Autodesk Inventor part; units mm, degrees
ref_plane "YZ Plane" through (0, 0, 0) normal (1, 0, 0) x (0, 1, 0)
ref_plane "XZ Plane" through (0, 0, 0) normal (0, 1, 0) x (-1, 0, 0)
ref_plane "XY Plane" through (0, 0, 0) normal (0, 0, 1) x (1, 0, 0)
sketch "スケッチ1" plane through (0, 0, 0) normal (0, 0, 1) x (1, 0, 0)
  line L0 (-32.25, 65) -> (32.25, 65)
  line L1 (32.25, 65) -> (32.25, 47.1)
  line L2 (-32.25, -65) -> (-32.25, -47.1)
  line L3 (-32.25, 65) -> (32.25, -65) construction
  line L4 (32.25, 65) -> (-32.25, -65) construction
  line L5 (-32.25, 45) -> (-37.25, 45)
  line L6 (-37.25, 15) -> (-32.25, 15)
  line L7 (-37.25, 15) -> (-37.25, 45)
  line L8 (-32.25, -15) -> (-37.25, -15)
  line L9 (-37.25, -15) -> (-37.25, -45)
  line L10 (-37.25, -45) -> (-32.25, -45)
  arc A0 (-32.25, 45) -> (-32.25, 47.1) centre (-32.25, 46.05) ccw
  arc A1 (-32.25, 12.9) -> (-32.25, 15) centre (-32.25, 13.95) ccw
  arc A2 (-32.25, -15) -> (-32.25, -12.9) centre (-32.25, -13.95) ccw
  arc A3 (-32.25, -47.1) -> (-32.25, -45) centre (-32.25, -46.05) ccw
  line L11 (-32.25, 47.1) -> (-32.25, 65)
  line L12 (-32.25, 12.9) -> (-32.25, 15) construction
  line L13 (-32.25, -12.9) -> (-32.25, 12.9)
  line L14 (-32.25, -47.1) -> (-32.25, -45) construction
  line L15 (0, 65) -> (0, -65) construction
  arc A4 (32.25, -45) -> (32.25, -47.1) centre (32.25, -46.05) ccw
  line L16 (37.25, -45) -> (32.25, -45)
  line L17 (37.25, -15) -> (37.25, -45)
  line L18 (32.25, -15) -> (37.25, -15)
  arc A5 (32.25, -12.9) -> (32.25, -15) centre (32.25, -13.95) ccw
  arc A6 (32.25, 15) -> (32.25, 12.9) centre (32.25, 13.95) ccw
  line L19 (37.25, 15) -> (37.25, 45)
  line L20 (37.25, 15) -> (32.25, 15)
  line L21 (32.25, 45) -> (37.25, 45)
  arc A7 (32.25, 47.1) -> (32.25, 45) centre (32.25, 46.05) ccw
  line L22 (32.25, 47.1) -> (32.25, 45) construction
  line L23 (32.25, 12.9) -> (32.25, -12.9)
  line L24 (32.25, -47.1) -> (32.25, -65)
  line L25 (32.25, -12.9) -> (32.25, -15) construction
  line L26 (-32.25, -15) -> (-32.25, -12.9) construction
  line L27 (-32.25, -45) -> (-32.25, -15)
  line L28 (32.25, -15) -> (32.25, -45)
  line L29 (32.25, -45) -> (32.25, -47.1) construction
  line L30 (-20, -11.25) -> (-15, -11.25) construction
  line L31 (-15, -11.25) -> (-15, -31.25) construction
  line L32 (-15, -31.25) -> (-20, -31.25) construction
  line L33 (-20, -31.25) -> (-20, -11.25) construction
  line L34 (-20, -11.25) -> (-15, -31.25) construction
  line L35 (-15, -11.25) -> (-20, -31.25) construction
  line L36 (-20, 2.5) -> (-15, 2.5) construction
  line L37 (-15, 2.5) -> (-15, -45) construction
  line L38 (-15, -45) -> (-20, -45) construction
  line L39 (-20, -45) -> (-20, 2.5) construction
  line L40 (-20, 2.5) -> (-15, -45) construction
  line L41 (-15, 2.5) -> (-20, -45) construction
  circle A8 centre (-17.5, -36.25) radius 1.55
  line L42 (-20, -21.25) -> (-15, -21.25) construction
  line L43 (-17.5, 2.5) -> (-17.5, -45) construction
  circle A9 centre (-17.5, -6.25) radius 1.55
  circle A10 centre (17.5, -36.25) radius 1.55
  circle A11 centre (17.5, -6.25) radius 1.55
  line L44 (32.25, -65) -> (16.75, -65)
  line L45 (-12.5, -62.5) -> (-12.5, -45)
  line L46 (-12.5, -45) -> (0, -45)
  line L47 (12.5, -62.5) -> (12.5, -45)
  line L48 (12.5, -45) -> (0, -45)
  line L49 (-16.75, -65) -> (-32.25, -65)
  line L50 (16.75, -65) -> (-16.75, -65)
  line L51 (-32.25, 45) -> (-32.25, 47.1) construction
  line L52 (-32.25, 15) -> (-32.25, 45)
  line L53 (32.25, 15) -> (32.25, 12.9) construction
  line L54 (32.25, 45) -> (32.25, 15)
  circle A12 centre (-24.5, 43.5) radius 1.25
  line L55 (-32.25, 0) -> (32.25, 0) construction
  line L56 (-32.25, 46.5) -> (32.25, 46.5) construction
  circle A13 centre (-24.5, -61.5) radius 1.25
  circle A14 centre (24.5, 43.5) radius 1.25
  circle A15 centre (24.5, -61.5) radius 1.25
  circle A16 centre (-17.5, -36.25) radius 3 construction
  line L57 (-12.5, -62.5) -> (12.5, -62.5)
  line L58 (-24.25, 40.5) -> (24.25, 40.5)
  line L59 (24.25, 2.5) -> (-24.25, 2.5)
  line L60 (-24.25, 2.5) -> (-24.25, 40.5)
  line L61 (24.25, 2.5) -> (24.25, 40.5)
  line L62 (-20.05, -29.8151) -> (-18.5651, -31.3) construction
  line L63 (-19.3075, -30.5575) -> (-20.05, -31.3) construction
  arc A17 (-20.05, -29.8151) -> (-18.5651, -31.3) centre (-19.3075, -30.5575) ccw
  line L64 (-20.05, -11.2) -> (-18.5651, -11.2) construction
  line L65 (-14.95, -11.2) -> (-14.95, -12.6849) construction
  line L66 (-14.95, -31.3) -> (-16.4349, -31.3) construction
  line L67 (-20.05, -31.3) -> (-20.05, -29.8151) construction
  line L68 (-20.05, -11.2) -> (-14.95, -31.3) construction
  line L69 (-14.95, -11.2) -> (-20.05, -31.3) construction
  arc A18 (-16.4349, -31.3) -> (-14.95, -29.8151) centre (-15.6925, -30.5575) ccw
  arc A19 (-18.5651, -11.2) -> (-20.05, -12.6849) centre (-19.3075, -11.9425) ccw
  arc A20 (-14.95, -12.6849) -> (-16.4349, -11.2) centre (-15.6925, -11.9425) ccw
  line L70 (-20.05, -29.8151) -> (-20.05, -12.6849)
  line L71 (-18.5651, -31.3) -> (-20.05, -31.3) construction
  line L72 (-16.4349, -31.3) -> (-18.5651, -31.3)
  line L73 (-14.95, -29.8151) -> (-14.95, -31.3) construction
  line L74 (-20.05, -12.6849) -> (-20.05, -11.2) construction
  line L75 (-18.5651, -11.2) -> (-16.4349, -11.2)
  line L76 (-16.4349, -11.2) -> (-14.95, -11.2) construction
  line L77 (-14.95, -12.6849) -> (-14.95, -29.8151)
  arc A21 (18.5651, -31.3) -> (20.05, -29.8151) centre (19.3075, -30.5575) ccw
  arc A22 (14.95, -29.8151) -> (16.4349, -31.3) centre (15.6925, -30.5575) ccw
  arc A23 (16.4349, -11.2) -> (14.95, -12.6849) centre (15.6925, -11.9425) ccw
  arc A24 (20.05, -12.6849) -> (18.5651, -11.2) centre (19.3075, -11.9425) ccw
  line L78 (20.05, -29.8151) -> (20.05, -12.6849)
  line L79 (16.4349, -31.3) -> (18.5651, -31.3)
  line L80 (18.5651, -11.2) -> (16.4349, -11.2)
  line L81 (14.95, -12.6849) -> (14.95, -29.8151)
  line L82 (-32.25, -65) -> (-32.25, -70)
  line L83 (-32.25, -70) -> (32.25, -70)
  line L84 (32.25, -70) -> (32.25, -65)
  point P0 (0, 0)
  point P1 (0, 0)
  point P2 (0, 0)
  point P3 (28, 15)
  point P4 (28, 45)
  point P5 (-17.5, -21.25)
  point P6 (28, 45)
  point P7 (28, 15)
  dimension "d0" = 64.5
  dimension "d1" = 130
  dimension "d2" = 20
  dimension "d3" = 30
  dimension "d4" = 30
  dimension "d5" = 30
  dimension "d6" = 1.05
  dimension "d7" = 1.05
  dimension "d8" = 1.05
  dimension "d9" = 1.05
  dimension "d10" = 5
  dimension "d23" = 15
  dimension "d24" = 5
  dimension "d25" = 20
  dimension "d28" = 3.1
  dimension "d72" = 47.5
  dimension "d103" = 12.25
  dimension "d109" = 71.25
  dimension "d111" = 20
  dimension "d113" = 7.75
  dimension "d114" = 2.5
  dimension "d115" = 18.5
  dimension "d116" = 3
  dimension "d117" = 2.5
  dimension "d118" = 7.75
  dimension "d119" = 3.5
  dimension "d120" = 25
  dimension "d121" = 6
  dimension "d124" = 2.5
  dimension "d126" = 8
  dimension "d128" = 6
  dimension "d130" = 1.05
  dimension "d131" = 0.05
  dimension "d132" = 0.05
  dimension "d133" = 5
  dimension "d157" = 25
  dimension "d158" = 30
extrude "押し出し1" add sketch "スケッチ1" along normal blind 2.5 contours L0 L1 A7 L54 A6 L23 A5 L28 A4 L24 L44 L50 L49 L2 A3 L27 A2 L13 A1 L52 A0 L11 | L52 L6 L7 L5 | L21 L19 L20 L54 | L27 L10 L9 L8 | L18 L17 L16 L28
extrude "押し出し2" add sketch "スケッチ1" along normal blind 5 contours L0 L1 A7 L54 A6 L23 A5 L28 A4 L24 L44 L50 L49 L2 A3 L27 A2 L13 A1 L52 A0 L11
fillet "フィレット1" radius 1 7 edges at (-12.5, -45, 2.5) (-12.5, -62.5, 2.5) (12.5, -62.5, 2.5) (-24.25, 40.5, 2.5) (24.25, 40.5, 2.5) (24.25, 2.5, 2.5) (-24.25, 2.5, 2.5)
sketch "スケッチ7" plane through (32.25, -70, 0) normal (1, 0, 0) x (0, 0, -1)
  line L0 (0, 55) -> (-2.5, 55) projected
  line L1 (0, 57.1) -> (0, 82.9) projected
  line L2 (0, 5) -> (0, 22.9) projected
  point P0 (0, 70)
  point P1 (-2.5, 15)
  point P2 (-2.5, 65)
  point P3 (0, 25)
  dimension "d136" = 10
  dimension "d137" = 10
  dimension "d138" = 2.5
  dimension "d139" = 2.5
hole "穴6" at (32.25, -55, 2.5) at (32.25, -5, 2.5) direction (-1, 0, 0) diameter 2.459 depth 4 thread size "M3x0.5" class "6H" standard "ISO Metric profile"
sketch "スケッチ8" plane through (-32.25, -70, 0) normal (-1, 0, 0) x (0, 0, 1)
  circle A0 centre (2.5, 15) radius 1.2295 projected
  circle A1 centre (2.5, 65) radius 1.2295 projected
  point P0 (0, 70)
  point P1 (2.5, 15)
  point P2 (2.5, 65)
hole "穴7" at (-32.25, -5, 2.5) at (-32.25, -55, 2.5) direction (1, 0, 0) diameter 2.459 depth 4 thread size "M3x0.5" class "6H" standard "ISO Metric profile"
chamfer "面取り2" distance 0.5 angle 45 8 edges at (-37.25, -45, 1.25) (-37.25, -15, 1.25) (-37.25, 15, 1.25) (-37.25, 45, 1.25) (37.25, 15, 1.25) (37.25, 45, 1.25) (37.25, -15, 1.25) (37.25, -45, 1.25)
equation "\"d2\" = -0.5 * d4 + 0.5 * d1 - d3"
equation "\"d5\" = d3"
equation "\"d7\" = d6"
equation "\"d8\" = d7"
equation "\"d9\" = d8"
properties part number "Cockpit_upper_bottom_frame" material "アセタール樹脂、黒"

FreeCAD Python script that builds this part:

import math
import FreeCAD as App
import Part
import Sketcher


def edges_at(feature, points):
    """Names of the edges that pass closest to the given points."""
    edges = feature.Shape.Edges
    near = lambda p: min(range(len(edges)), key=lambda i: edges[i].distToShape(Part.Vertex(*p))[0])
    return sorted({f"Edge{near(p) + 1}" for p in points})


def add_polygon(sketch, points):
    """Adds a closed chain of lines whose ends are joined by coincident constraints."""
    first, n = sketch.GeometryCount, len(points)
    for a, b in zip(points, points[1:] + points[:1]):
        sketch.addGeometry(Part.LineSegment(App.Vector(*a, 0), App.Vector(*b, 0)), False)
    for i in range(n):
        sketch.addConstraint(Sketcher.Constraint("Coincident", first + i, 2, first + (i + 1) % n, 1))

doc = App.newDocument("Part")
body = doc.addObject("PartDesign::Body", "Body")

sketch1 = body.newObject("Sketcher::SketchObject", "Sketch")
sketch1.AttachmentSupport = (doc.getObject("XY_Plane"), [""])
sketch1.MapMode = "FlatFace"
sketch1.addGeometry(Part.LineSegment(App.Vector(32.2, 65, 0), App.Vector(-32.2, 65, 0)), False)
sketch1.addGeometry(Part.LineSegment(App.Vector(-32.2, 65, 0), App.Vector(-32.2, 47.1, 0)), False)
sketch1.addGeometry(Part.ArcOfCircle(Part.Circle(App.Vector(-32.2, 46, 0), App.Vector(0, 0, 1), 1), math.radians(-90), math.radians(90)), False)
sketch1.addGeometry(Part.LineSegment(App.Vector(-32.2, 45, 0), App.Vector(-37.2, 45, 0)), False)
sketch1.addGeometry(Part.LineSegment(App.Vector(-37.2, 45, 0), App.Vector(-37.2, 15, 0)), False)
sketch1.addGeometry(Part.LineSegment(App.Vector(-37.2, 15, 0), App.Vector(-32.2, 15, 0)), False)
sketch1.addGeometry(Part.ArcOfCircle(Part.Circle(App.Vector(-32.2, 13.9, 0), App.Vector(0, 0, 1), 1), math.radians(-90), math.radians(90)), False)
sketch1.addGeometry(Part.LineSegment(App.Vector(-32.2, 12.9, 0), App.Vector(-32.2, -12.9, 0)), False)
sketch1.addGeometry(Part.ArcOfCircle(Part.Circle(App.Vector(-32.2, -13.9, 0), App.Vector(0, 0, 1), 1.1), math.radians(-90), math.radians(90)), False)
sketch1.addGeometry(Part.LineSegment(App.Vector(-32.2, -15, 0), App.Vector(-37.2, -15, 0)), False)
sketch1.addGeometry(Part.LineSegment(App.Vector(-37.2, -15, 0), App.Vector(-37.2, -45, 0)), False)
sketch1.addGeometry(Part.LineSegment(App.Vector(-37.2, -45, 0), App.Vector(-32.2, -45, 0)), False)
sketch1.addGeometry(Part.ArcOfCircle(Part.Circle(App.Vector(-32.2, -46, 0), App.Vector(0, 0, 1), 1.1), math.radians(-90), math.radians(90)), False)
sketch1.addGeometry(Part.LineSegment(App.Vector(-32.2, -47.1, 0), App.Vector(-32.2, -65, 0)), False)
sketch1.addGeometry(Part.LineSegment(App.Vector(-32.2, -65, 0), App.Vector(32.2, -65, 0)), False)
sketch1.addGeometry(Part.LineSegment(App.Vector(32.2, -65, 0), App.Vector(32.2, -47.1, 0)), False)
sketch1.addGeometry(Part.ArcOfCircle(Part.Circle(App.Vector(32.2, -46, 0), App.Vector(0, 0, 1), 1), math.radians(90), math.radians(270)), False)
sketch1.addGeometry(Part.LineSegment(App.Vector(32.2, -45, 0), App.Vector(37.2, -45, 0)), False)
sketch1.addGeometry(Part.LineSegment(App.Vector(37.2, -45, 0), App.Vector(37.2, -15, 0)), False)
sketch1.addGeometry(Part.LineSegment(App.Vector(37.2, -15, 0), App.Vector(32.2, -15, 0)), False)
sketch1.addGeometry(Part.ArcOfCircle(Part.Circle(App.Vector(32.2, -13.9, 0), App.Vector(0, 0, 1), 1), math.radians(90), math.radians(270)), False)
sketch1.addGeometry(Part.LineSegment(App.Vector(32.2, -12.9, 0), App.Vector(32.2, 12.9, 0)), False)
sketch1.addGeometry(Part.ArcOfCircle(Part.Circle(App.Vector(32.2, 13.9, 0), App.Vector(0, 0, 1), 1.1), math.radians(90), math.radians(270)), False)
sketch1.addGeometry(Part.LineSegment(App.Vector(32.2, 15, 0), App.Vector(37.2, 15, 0)), False)
sketch1.addGeometry(Part.LineSegment(App.Vector(37.2, 15, 0), App.Vector(37.2, 45, 0)), False)
sketch1.addGeometry(Part.LineSegment(App.Vector(37.2, 45, 0), App.Vector(32.2, 45, 0)), False)
sketch1.addGeometry(Part.ArcOfCircle(Part.Circle(App.Vector(32.2, 46, 0), App.Vector(0, 0, 1), 1.1), math.radians(90), math.radians(270)), False)
sketch1.addGeometry(Part.LineSegment(App.Vector(32.2, 47.1, 0), App.Vector(32.2, 65, 0)), False)
sketch1.addGeometry(Part.Circle(App.Vector(-24.5, -61.5, 0), App.Vector(0, 0, 1), 1.2), False)
sketch1.addGeometry(Part.Circle(App.Vector(-17.5, -36.2, 0), App.Vector(0, 0, 1), 1.6), False)
sketch1.addGeometry(Part.ArcOfCircle(Part.Circle(App.Vector(-19.3, -30.6, 0), App.Vector(0, 0, 1), 1), math.radians(135), math.radians(315)), False)
sketch1.addGeometry(Part.LineSegment(App.Vector(-20.1, -29.8, 0), App.Vector(-20.1, -12.7, 0)), False)
sketch1.addGeometry(Part.ArcOfCircle(Part.Circle(App.Vector(-19.3, -11.9, 0), App.Vector(0, 0, 1), 1), math.radians(45), math.radians(225)), False)
sketch1.addGeometry(Part.LineSegment(App.Vector(-18.6, -11.2, 0), App.Vector(-16.4, -11.2, 0)), False)
sketch1.addGeometry(Part.ArcOfCircle(Part.Circle(App.Vector(-15.7, -11.9, 0), App.Vector(0, 0, 1), 1), math.radians(-45), math.radians(135)), False)
sketch1.addGeometry(Part.LineSegment(App.Vector(-14.9, -12.7, 0), App.Vector(-14.9, -29.8, 0)), False)
sketch1.addGeometry(Part.ArcOfCircle(Part.Circle(App.Vector(-15.7, -30.6, 0), App.Vector(0, 0, 1), 1), math.radians(-135), math.radians(45)), False)
sketch1.addGeometry(Part.LineSegment(App.Vector(-16.4, -31.3, 0), App.Vector(-18.6, -31.3, 0)), False)
sketch1.addGeometry(Part.Circle(App.Vector(-17.5, -6.2, 0), App.Vector(0, 0, 1), 1.6), False)
add_polygon(sketch1, [(12.5, -62.5), (-12.5, -62.5), (-12.5, -45), (12.5, -45)])
sketch1.addGeometry(Part.Circle(App.Vector(24.5, -61.5, 0), App.Vector(0, 0, 1), 1.2), False)
sketch1.addGeometry(Part.Circle(App.Vector(17.5, -36.2, 0), App.Vector(0, 0, 1), 1.6), False)
sketch1.addGeometry(Part.ArcOfCircle(Part.Circle(App.Vector(19.3, -30.6, 0), App.Vector(0, 0, 1), 1), math.radians(-135), math.radians(45)), False)
sketch1.addGeometry(Part.LineSegment(App.Vector(18.6, -31.3, 0), App.Vector(16.4, -31.3, 0)), False)
sketch1.addGeometry(Part.ArcOfCircle(Part.Circle(App.Vector(15.7, -30.6, 0), App.Vector(0, 0, 1), 1), math.radians(135), math.radians(315)), False)
sketch1.addGeometry(Part.LineSegment(App.Vector(14.9, -29.8, 0), App.Vector(14.9, -12.7, 0)), False)
sketch1.addGeometry(Part.ArcOfCircle(Part.Circle(App.Vector(15.7, -11.9, 0), App.Vector(0, 0, 1), 1), math.radians(45), math.radians(225)), False)
sketch1.addGeometry(Part.LineSegment(App.Vector(16.4, -11.2, 0), App.Vector(18.6, -11.2, 0)), False)
sketch1.addGeometry(Part.ArcOfCircle(Part.Circle(App.Vector(19.3, -11.9, 0), App.Vector(0, 0, 1), 1), math.radians(-45), math.radians(135)), False)
sketch1.addGeometry(Part.LineSegment(App.Vector(20.1, -12.7, 0), App.Vector(20.1, -29.8, 0)), False)
sketch1.addGeometry(Part.Circle(App.Vector(17.5, -6.2, 0), App.Vector(0, 0, 1), 1.6), False)
sketch1.addGeometry(Part.Circle(App.Vector(-24.5, 43.5, 0), App.Vector(0, 0, 1), 1.2), False)
add_polygon(sketch1, [(-24.2, 2.5), (-24.2, 40.5), (24.2, 40.5), (24.2, 2.5)])
sketch1.addGeometry(Part.Circle(App.Vector(24.5, 43.5, 0), App.Vector(0, 0, 1), 1.2), False)
sketch1.addConstraint([
    Sketcher.Constraint("Coincident", 0, 2, 1, 1),
    Sketcher.Constraint("Coincident", 1, 2, 2, 2),
    Sketcher.Constraint("Tangent", 2, 1, 3, 1),
    Sketcher.Constraint("Coincident", 3, 2, 4, 1),
    Sketcher.Constraint("Coincident", 4, 2, 5, 1),
    Sketcher.Constraint("Tangent", 5, 2, 6, 2),
    Sketcher.Constraint("Coincident", 6, 1, 7, 1),
    Sketcher.Constraint("Coincident", 7, 2, 8, 2),
    Sketcher.Constraint("Tangent", 8, 1, 9, 1),
    Sketcher.Constraint("Coincident", 9, 2, 10, 1),
    Sketcher.Constraint("Coincident", 10, 2, 11, 1),
    Sketcher.Constraint("Tangent", 11, 2, 12, 2),
    Sketcher.Constraint("Coincident", 12, 1, 13, 1),
    Sketcher.Constraint("Coincident", 13, 2, 14, 1),
    Sketcher.Constraint("Coincident", 14, 2, 15, 1),
    Sketcher.Constraint("Coincident", 15, 2, 16, 2),
    Sketcher.Constraint("Tangent", 16, 1, 17, 1),
    Sketcher.Constraint("Coincident", 17, 2, 18, 1),
    Sketcher.Constraint("Coincident", 18, 2, 19, 1),
    Sketcher.Constraint("Tangent", 19, 2, 20, 2),
    Sketcher.Constraint("Coincident", 20, 1, 21, 1),
    Sketcher.Constraint("Coincident", 21, 2, 22, 2),
    Sketcher.Constraint("Tangent", 22, 1, 23, 1),
    Sketcher.Constraint("Coincident", 23, 2, 24, 1),
    Sketcher.Constraint("Coincident", 24, 2, 25, 1),
    Sketcher.Constraint("Tangent", 25, 2, 26, 2),
    Sketcher.Constraint("Coincident", 26, 1, 27, 1),
    Sketcher.Constraint("Coincident", 27, 2, 0, 1),
    Sketcher.Constraint("Coincident", 30, 1, 31, 1),
    Sketcher.Constraint("Coincident", 31, 2, 32, 2),
    Sketcher.Constraint("Coincident", 32, 1, 33, 1),
    Sketcher.Constraint("Coincident", 33, 2, 34, 2),
    Sketcher.Constraint("Coincident", 34, 1, 35, 1),
    Sketcher.Constraint("Coincident", 35, 2, 36, 2),
    Sketcher.Constraint("Coincident", 36, 1, 37, 1),
    Sketcher.Constraint("Coincident", 37, 2, 30, 2),
    Sketcher.Constraint("Coincident", 45, 1, 46, 1),
    Sketcher.Constraint("Coincident", 46, 2, 47, 2),
    Sketcher.Constraint("Coincident", 47, 1, 48, 1),
    Sketcher.Constraint("Coincident", 48, 2, 49, 2),
    Sketcher.Constraint("Coincident", 49, 1, 50, 1),
    Sketcher.Constraint("Coincident", 50, 2, 51, 2),
    Sketcher.Constraint("Coincident", 51, 1, 52, 1),
    Sketcher.Constraint("Coincident", 52, 2, 45, 2),
    Sketcher.Constraint("Horizontal", 0),
    Sketcher.Constraint("Vertical", 1),
    Sketcher.Constraint("Horizontal", 3),
    Sketcher.Constraint("Vertical", 4),
    Sketcher.Constraint("Horizontal", 5),
    Sketcher.Constraint("Vertical", 7),
    Sketcher.Constraint("Horizontal", 9),
    Sketcher.Constraint("Vertical", 10),
    Sketcher.Constraint("Horizontal", 11),
    Sketcher.Constraint("Vertical", 13),
    Sketcher.Constraint("Horizontal", 14),
    Sketcher.Constraint("Vertical", 15),
    Sketcher.Constraint("Horizontal", 17),
    Sketcher.Constraint("Vertical", 18),
    Sketcher.Constraint("Horizontal", 19),
    Sketcher.Constraint("Vertical", 21),
    Sketcher.Constraint("Horizontal", 23),
    Sketcher.Constraint("Vertical", 24),
    Sketcher.Constraint("Horizontal", 25),
    Sketcher.Constraint("Vertical", 27),
    Sketcher.Constraint("Vertical", 31),
    Sketcher.Constraint("Horizontal", 33),
    Sketcher.Constraint("Vertical", 35),
    Sketcher.Constraint("Horizontal", 37),
    Sketcher.Constraint("Horizontal", 39),
    Sketcher.Constraint("Vertical", 40),
    Sketcher.Constraint("Horizontal", 41),
    Sketcher.Constraint("Vertical", 42),
    Sketcher.Constraint("Horizontal", 46),
    Sketcher.Constraint("Vertical", 48),
    Sketcher.Constraint("Horizontal", 50),
    Sketcher.Constraint("Vertical", 52),
    Sketcher.Constraint("Vertical", 55),
    Sketcher.Constraint("Horizontal", 56),
    Sketcher.Constraint("Vertical", 57),
    Sketcher.Constraint("Horizontal", 58),
    Sketcher.Constraint("Equal", 2, 6),
    Sketcher.Constraint("Equal", 6, 8),
    Sketcher.Constraint("Equal", 8, 12),
    Sketcher.Constraint("Equal", 12, 16),
    Sketcher.Constraint("Equal", 16, 20),
    Sketcher.Constraint("Equal", 20, 22),
    Sketcher.Constraint("Equal", 22, 26),
    Sketcher.Constraint("Equal", 26, 30),
    Sketcher.Constraint("Equal", 30, 32),
    Sketcher.Constraint("Equal", 32, 34),
    Sketcher.Constraint("Equal", 34, 36),
    Sketcher.Constraint("Equal", 29, 38),
    Sketcher.Constraint("Equal", 28, 43),
    Sketcher.Constraint("Equal", 38, 44),
    Sketcher.Constraint("Equal", 36, 45),
    Sketcher.Constraint("Equal", 45, 47),
    Sketcher.Constraint("Equal", 47, 49),
    Sketcher.Constraint("Equal", 49, 51),
    Sketcher.Constraint("Equal", 44, 53),
    Sketcher.Constraint("Equal", 43, 54),
    Sketcher.Constraint("Equal", 54, 59),
    Sketcher.Constraint("Symmetric", 2, 3, 16, 3, -1, 1),
    Sketcher.Constraint("Symmetric", 6, 3, 20, 3, -1, 1),
    Sketcher.Constraint("Symmetric", 8, 3, 22, 3, -1, 1),
    Sketcher.Constraint("Symmetric", 12, 3, 26, 3, -1, 1),
    Sketcher.Constraint("Symmetric", 0, 2, 14, 2, -1, 1),
    Sketcher.Constraint("Symmetric", 12, 3, 16, 3, -2),
    Sketcher.Constraint("Symmetric", 8, 3, 20, 3, -2),
    Sketcher.Constraint("Symmetric", 28, 3, 43, 3, -2),
    Sketcher.Constraint("Symmetric", 29, 3, 44, 3, -2),
    Sketcher.Constraint("Symmetric", 30, 3, 45, 3, -2),
    Sketcher.Constraint("Symmetric", 36, 3, 47, 3, -2),
    Sketcher.Constraint("Symmetric", 34, 3, 49, 3, -2),
    Sketcher.Constraint("Symmetric", 32, 3, 51, 3, -2),
    Sketcher.Constraint("Symmetric", 38, 3, 53, 3, -2),
    Sketcher.Constraint("Symmetric", 54, 3, 59, 3, -2),
    Sketcher.Constraint("Horizontal", 32, 3, 34, 3),
    Sketcher.Constraint("Horizontal", 30, 3, 36, 3),
    Sketcher.Constraint("Horizontal", 31, 2, 34, 1),
    Sketcher.Constraint("Horizontal", 30, 1, 35, 2),
    Sketcher.Constraint("Horizontal", 17, 2, 40, 2),
    Sketcher.Constraint("Horizontal", 37, 2, 45, 1),
    Sketcher.Constraint("Horizontal", 35, 2, 47, 1),
    Sketcher.Constraint("Horizontal", 33, 2, 49, 1),
    Sketcher.Constraint("Horizontal", 48, 2, 51, 1),
    Sketcher.Constraint("Vertical", 2, 3, 6, 3),
    Sketcher.Constraint("Vertical", 30, 3, 32, 3),
    Sketcher.Constraint("Vertical", 29, 3, 38, 3),
    Sketcher.Constraint("Vertical", 28, 3, 54, 3),
    Sketcher.Constraint("Vertical", 12, 3, 0, 2),
    Sketcher.Constraint("Vertical", 5, 2, 6, 1),
    Sketcher.Constraint("Vertical", 4, 2, 9, 2),
    Sketcher.Constraint("Vertical", 11, 2, 12, 1),
    Sketcher.Constraint("Vertical", 19, 2, 20, 1),
    Sketcher.Constraint("Vertical", 18, 2, 23, 2),
    Sketcher.Constraint("Vertical", 25, 2, 26, 1),
    Sketcher.Constraint("Vertical", 33, 2, 36, 1),
    Sketcher.Constraint("Equal", 11, 17),
    Sketcher.Constraint("Diameter", 28, 2.5),
    Sketcher.Constraint("Diameter", 29, 3.1),
    Sketcher.Constraint("DistanceX", 3, 2, 3, 1, 5.0),
    Sketcher.Constraint("DistanceX", 39, 2, 39, 1, 25.0),
    Sketcher.Constraint("DistanceY", 4, 2, 4, 1, 30.0),
    Sketcher.Constraint("Radius", 2, 1.05),
    Sketcher.Constraint("DistanceX", 0, 2, 0, 1, 64.5),
    Sketcher.Constraint("DistanceY", -1, 1, 4, 2, 15.0),
    Sketcher.Constraint("DistanceY", -1, 1, 57, 2, 2.5),
    Sketcher.Constraint("DistanceY", 55, 1, 55, 2, 38.0),
    Sketcher.Constraint("DistanceX", 56, 1, 56, 2, 48.5),
    Sketcher.Constraint("DistanceY", 1, 2, 1, 1, 17.9),
    Sketcher.Constraint("DistanceY", 40, 1, 40, 2, 17.5),
    Sketcher.Constraint("DistanceX", 28, 3, -1, 1, 24.5),
    Sketcher.Constraint("DistanceY", 28, 3, -1, 1, 61.5),
    Sketcher.Constraint("DistanceX", 29, 3, -1, 1, 17.5),
    Sketcher.Constraint("DistanceY", -1, 1, 54, 3, 43.5),
    Sketcher.Constraint("DistanceY", 32, 1, -1, 1, 11.2),
    Sketcher.Constraint("DistanceY", 36, 1, -1, 1, 31.3),
    Sketcher.Constraint("DistanceX", 39, 2, -1, 1, 12.5),
    Sketcher.Constraint("DistanceY", 29, 3, -1, 1, 36.25),
    Sketcher.Constraint("DistanceY", 38, 3, -1, 1, 6.25),
    Sketcher.Constraint("DistanceX", 30, 1, -1, 1, 20.05),
    Sketcher.Constraint("DistanceX", 34, 1, -1, 1, 14.95),
    Sketcher.Constraint("DistanceX", 55, 2, -1, 1, 24.25),
    Sketcher.Constraint("DistanceX", 33, 1, 33, 2, 2.1302),
    Sketcher.Constraint("DistanceX", 30, 3, -1, 1, 19.3075),
])
pad1 = body.newObject("PartDesign::Pad", "Pad")
pad1.Profile = sketch1
pad1.Length = 2.5

sketch2 = body.newObject("Sketcher::SketchObject", "Sketch001")
sketch2.AttachmentSupport = (doc.getObject("XY_Plane"), [""])
sketch2.MapMode = "FlatFace"
sketch2.addGeometry(Part.LineSegment(App.Vector(32.2, 65, 0), App.Vector(-32.2, 65, 0)), False)
sketch2.addGeometry(Part.LineSegment(App.Vector(-32.2, 65, 0), App.Vector(-32.2, 47.1, 0)), False)
sketch2.addGeometry(Part.ArcOfCircle(Part.Circle(App.Vector(-32.2, 46, 0), App.Vector(0, 0, 1), 1), math.radians(-90), math.radians(90)), False)
sketch2.addGeometry(Part.LineSegment(App.Vector(-32.2, 45, 0), App.Vector(-32.2, 15, 0)), False)
sketch2.addGeometry(Part.ArcOfCircle(Part.Circle(App.Vector(-32.2, 13.9, 0), App.Vector(0, 0, 1), 1), math.radians(-90), math.radians(90)), False)
sketch2.addGeometry(Part.LineSegment(App.Vector(-32.2, 12.9, 0), App.Vector(-32.2, -12.9, 0)), False)
sketch2.addGeometry(Part.ArcOfCircle(Part.Circle(App.Vector(-32.2, -13.9, 0), App.Vector(0, 0, 1), 1.1), math.radians(-90), math.radians(90)), False)
sketch2.addGeometry(Part.LineSegment(App.Vector(-32.2, -15, 0), App.Vector(-32.2, -45, 0)), False)
sketch2.addGeometry(Part.ArcOfCircle(Part.Circle(App.Vector(-32.2, -46, 0), App.Vector(0, 0, 1), 1.1), math.radians(-90), math.radians(90)), False)
sketch2.addGeometry(Part.LineSegment(App.Vector(-32.2, -47.1, 0), App.Vector(-32.2, -65, 0)), False)
sketch2.addGeometry(Part.LineSegment(App.Vector(-32.2, -65, 0), App.Vector(32.2, -65, 0)), False)
sketch2.addGeometry(Part.LineSegment(App.Vector(32.2, -65, 0), App.Vector(32.2, -47.1, 0)), False)
sketch2.addGeometry(Part.ArcOfCircle(Part.Circle(App.Vector(32.2, -46, 0), App.Vector(0, 0, 1), 1), math.radians(90), math.radians(270)), False)
sketch2.addGeometry(Part.LineSegment(App.Vector(32.2, -45, 0), App.Vector(32.2, -15, 0)), False)
sketch2.addGeometry(Part.ArcOfCircle(Part.Circle(App.Vector(32.2, -13.9, 0), App.Vector(0, 0, 1), 1), math.radians(90), math.radians(270)), False)
sketch2.addGeometry(Part.LineSegment(App.Vector(32.2, -12.9, 0), App.Vector(32.2, 12.9, 0)), False)
sketch2.addGeometry(Part.ArcOfCircle(Part.Circle(App.Vector(32.2, 13.9, 0), App.Vector(0, 0, 1), 1.1), math.radians(90), math.radians(270)), False)
sketch2.addGeometry(Part.LineSegment(App.Vector(32.2, 15, 0), App.Vector(32.2, 45, 0)), False)
sketch2.addGeometry(Part.ArcOfCircle(Part.Circle(App.Vector(32.2, 46, 0), App.Vector(0, 0, 1), 1.1), math.radians(90), math.radians(270)), False)
sketch2.addGeometry(Part.LineSegment(App.Vector(32.2, 47.1, 0), App.Vector(32.2, 65, 0)), False)
sketch2.addGeometry(Part.Circle(App.Vector(-24.5, -61.5, 0), App.Vector(0, 0, 1), 1.2), False)
sketch2.addGeometry(Part.Circle(App.Vector(-17.5, -36.2, 0), App.Vector(0, 0, 1), 1.6), False)
sketch2.addGeometry(Part.ArcOfCircle(Part.Circle(App.Vector(-19.3, -30.6, 0), App.Vector(0, 0, 1), 1), math.radians(135), math.radians(315)), False)
sketch2.addGeometry(Part.LineSegment(App.Vector(-20.1, -29.8, 0), App.Vector(-20.1, -12.7, 0)), False)
sketch2.addGeometry(Part.ArcOfCircle(Part.Circle(App.Vector(-19.3, -11.9, 0), App.Vector(0, 0, 1), 1), math.radians(45), math.radians(225)), False)
sketch2.addGeometry(Part.LineSegment(App.Vector(-18.6, -11.2, 0), App.Vector(-16.4, -11.2, 0)), False)
sketch2.addGeometry(Part.ArcOfCircle(Part.Circle(App.Vector(-15.7, -11.9, 0), App.Vector(0, 0, 1), 1), math.radians(-45), math.radians(135)), False)
sketch2.addGeometry(Part.LineSegment(App.Vector(-14.9, -12.7, 0), App.Vector(-14.9, -29.8, 0)), False)
sketch2.addGeometry(Part.ArcOfCircle(Part.Circle(App.Vector(-15.7, -30.6, 0), App.Vector(0, 0, 1), 1), math.radians(-135), math.radians(45)), False)
sketch2.addGeometry(Part.LineSegment(App.Vector(-16.4, -31.3, 0), App.Vector(-18.6, -31.3, 0)), False)
sketch2.addGeometry(Part.Circle(App.Vector(-17.5, -6.2, 0), App.Vector(0, 0, 1), 1.6), False)
add_polygon(sketch2, [(12.5, -62.5), (-12.5, -62.5), (-12.5, -45), (12.5, -45)])
sketch2.addGeometry(Part.Circle(App.Vector(24.5, -61.5, 0), App.Vector(0, 0, 1), 1.2), False)
sketch2.addGeometry(Part.Circle(App.Vector(17.5, -36.2, 0), App.Vector(0, 0, 1), 1.6), False)
sketch2.addGeometry(Part.ArcOfCircle(Part.Circle(App.Vector(19.3, -30.6, 0), App.Vector(0, 0, 1), 1), math.radians(-135), math.radians(45)), False)
sketch2.addGeometry(Part.LineSegment(App.Vector(18.6, -31.3, 0), App.Vector(16.4, -31.3, 0)), False)
sketch2.addGeometry(Part.ArcOfCircle(Part.Circle(App.Vector(15.7, -30.6, 0), App.Vector(0, 0, 1), 1), math.radians(135), math.radians(315)), False)
sketch2.addGeometry(Part.LineSegment(App.Vector(14.9, -29.8, 0), App.Vector(14.9, -12.7, 0)), False)
sketch2.addGeometry(Part.ArcOfCircle(Part.Circle(App.Vector(15.7, -11.9, 0), App.Vector(0, 0, 1), 1), math.radians(45), math.radians(225)), False)
sketch2.addGeometry(Part.LineSegment(App.Vector(16.4, -11.2, 0), App.Vector(18.6, -11.2, 0)), False)
sketch2.addGeometry(Part.ArcOfCircle(Part.Circle(App.Vector(19.3, -11.9, 0), App.Vector(0, 0, 1), 1), math.radians(-45), math.radians(135)), False)
sketch2.addGeometry(Part.LineSegment(App.Vector(20.1, -12.7, 0), App.Vector(20.1, -29.8, 0)), False)
sketch2.addGeometry(Part.Circle(App.Vector(17.5, -6.2, 0), App.Vector(0, 0, 1), 1.6), False)
sketch2.addGeometry(Part.Circle(App.Vector(-24.5, 43.5, 0), App.Vector(0, 0, 1), 1.2), False)
add_polygon(sketch2, [(-24.2, 2.5), (-24.2, 40.5), (24.2, 40.5), (24.2, 2.5)])
sketch2.addGeometry(Part.Circle(App.Vector(24.5, 43.5, 0), App.Vector(0, 0, 1), 1.2), False)
sketch2.addConstraint([
    Sketcher.Constraint("Coincident", 0, 2, 1, 1),
    Sketcher.Constraint("Coincident", 1, 2, 2, 2),
    Sketcher.Constraint("Coincident", 2, 1, 3, 1),
    Sketcher.Constraint("Coincident", 3, 2, 4, 2),
    Sketcher.Constraint("Coincident", 4, 1, 5, 1),
    Sketcher.Constraint("Coincident", 5, 2, 6, 2),
    Sketcher.Constraint("Coincident", 6, 1, 7, 1),
    Sketcher.Constraint("Coincident", 7, 2, 8, 2),
    Sketcher.Constraint("Coincident", 8, 1, 9, 1),
    Sketcher.Constraint("Coincident", 9, 2, 10, 1),
    Sketcher.Constraint("Coincident", 10, 2, 11, 1),
    Sketcher.Constraint("Coincident", 11, 2, 12, 2),
    Sketcher.Constraint("Coincident", 12, 1, 13, 1),
    Sketcher.Constraint("Coincident", 13, 2, 14, 2),
    Sketcher.Constraint("Coincident", 14, 1, 15, 1),
    Sketcher.Constraint("Coincident", 15, 2, 16, 2),
    Sketcher.Constraint("Coincident", 16, 1, 17, 1),
    Sketcher.Constraint("Coincident", 17, 2, 18, 2),
    Sketcher.Constraint("Coincident", 18, 1, 19, 1),
    Sketcher.Constraint("Coincident", 19, 2, 0, 1),
    Sketcher.Constraint("Coincident", 22, 1, 23, 1),
    Sketcher.Constraint("Coincident", 23, 2, 24, 2),
    Sketcher.Constraint("Coincident", 24, 1, 25, 1),
    Sketcher.Constraint("Coincident", 25, 2, 26, 2),
    Sketcher.Constraint("Coincident", 26, 1, 27, 1),
    Sketcher.Constraint("Coincident", 27, 2, 28, 2),
    Sketcher.Constraint("Coincident", 28, 1, 29, 1),
    Sketcher.Constraint("Coincident", 29, 2, 22, 2),
    Sketcher.Constraint("Coincident", 37, 1, 38, 1),
    Sketcher.Constraint("Coincident", 38, 2, 39, 2),
    Sketcher.Constraint("Coincident", 39, 1, 40, 1),
    Sketcher.Constraint("Coincident", 40, 2, 41, 2),
    Sketcher.Constraint("Coincident", 41, 1, 42, 1),
    Sketcher.Constraint("Coincident", 42, 2, 43, 2),
    Sketcher.Constraint("Coincident", 43, 1, 44, 1),
    Sketcher.Constraint("Coincident", 44, 2, 37, 2),
    Sketcher.Constraint("Horizontal", 0),
    Sketcher.Constraint("Vertical", 1),
    Sketcher.Constraint("Vertical", 3),
    Sketcher.Constraint("Vertical", 5),
    Sketcher.Constraint("Vertical", 7),
    Sketcher.Constraint("Vertical", 9),
    Sketcher.Constraint("Horizontal", 10),
    Sketcher.Constraint("Vertical", 11),
    Sketcher.Constraint("Vertical", 13),
    Sketcher.Constraint("Vertical", 15),
    Sketcher.Constraint("Vertical", 17),
    Sketcher.Constraint("Vertical", 19),
    Sketcher.Constraint("Vertical", 23),
    Sketcher.Constraint("Horizontal", 25),
    Sketcher.Constraint("Vertical", 27),
    Sketcher.Constraint("Horizontal", 29),
    Sketcher.Constraint("Horizontal", 31),
    Sketcher.Constraint("Vertical", 32),
    Sketcher.Constraint("Horizontal", 33),
    Sketcher.Constraint("Vertical", 34),
    Sketcher.Constraint("Horizontal", 38),
    Sketcher.Constraint("Vertical", 40),
    Sketcher.Constraint("Horizontal", 42),
    Sketcher.Constraint("Vertical", 44),
    Sketcher.Constraint("Vertical", 47),
    Sketcher.Constraint("Horizontal", 48),
    Sketcher.Constraint("Vertical", 49),
    Sketcher.Constraint("Horizontal", 50),
    Sketcher.Constraint("Equal", 2, 4),
    Sketcher.Constraint("Equal", 4, 6),
    Sketcher.Constraint("Equal", 6, 8),
    Sketcher.Constraint("Equal", 8, 12),
    Sketcher.Constraint("Equal", 12, 14),
    Sketcher.Constraint("Equal", 14, 16),
    Sketcher.Constraint("Equal", 16, 18),
    Sketcher.Constraint("Equal", 18, 22),
    Sketcher.Constraint("Equal", 22, 24),
    Sketcher.Constraint("Equal", 24, 26),
    Sketcher.Constraint("Equal", 26, 28),
    Sketcher.Constraint("Equal", 21, 30),
    Sketcher.Constraint("Equal", 20, 35),
    Sketcher.Constraint("Equal", 30, 36),
    Sketcher.Constraint("Equal", 28, 37),
    Sketcher.Constraint("Equal", 37, 39),
    Sketcher.Constraint("Equal", 39, 41),
    Sketcher.Constraint("Equal", 41, 43),
    Sketcher.Constraint("Equal", 36, 45),
    Sketcher.Constraint("Equal", 35, 46),
    Sketcher.Constraint("Equal", 46, 51),
    Sketcher.Constraint("Symmetric", 2, 3, 12, 3, -1, 1),
    Sketcher.Constraint("Symmetric", 4, 3, 14, 3, -1, 1),
    Sketcher.Constraint("Symmetric", 6, 3, 16, 3, -1, 1),
    Sketcher.Constraint("Symmetric", 8, 3, 18, 3, -1, 1),
    Sketcher.Constraint("Symmetric", 0, 2, 10, 2, -1, 1),
    Sketcher.Constraint("Symmetric", 8, 3, 12, 3, -2),
    Sketcher.Constraint("Symmetric", 6, 3, 14, 3, -2),
    Sketcher.Constraint("Symmetric", 20, 3, 35, 3, -2),
    Sketcher.Constraint("Symmetric", 21, 3, 36, 3, -2),
    Sketcher.Constraint("Symmetric", 22, 3, 37, 3, -2),
    Sketcher.Constraint("Symmetric", 28, 3, 39, 3, -2),
    Sketcher.Constraint("Symmetric", 26, 3, 41, 3, -2),
    Sketcher.Constraint("Symmetric", 24, 3, 43, 3, -2),
    Sketcher.Constraint("Symmetric", 30, 3, 45, 3, -2),
    Sketcher.Constraint("Symmetric", 46, 3, 51, 3, -2),
    Sketcher.Constraint("Horizontal", 24, 3, 26, 3),
    Sketcher.Constraint("Horizontal", 22, 3, 28, 3),
    Sketcher.Constraint("Horizontal", 23, 2, 26, 1),
    Sketcher.Constraint("Horizontal", 22, 1, 27, 2),
    Sketcher.Constraint("Horizontal", 12, 1, 32, 2),
    Sketcher.Constraint("Horizontal", 29, 2, 37, 1),
    Sketcher.Constraint("Horizontal", 27, 2, 39, 1),
    Sketcher.Constraint("Horizontal", 25, 2, 41, 1),
    Sketcher.Constraint("Horizontal", 40, 2, 43, 1),
    Sketcher.Constraint("Vertical", 2, 3, 4, 3),
    Sketcher.Constraint("Vertical", 22, 3, 24, 3),
    Sketcher.Constraint("Vertical", 21, 3, 30, 3),
    Sketcher.Constraint("Vertical", 20, 3, 46, 3),
    Sketcher.Constraint("Vertical", 8, 3, 0, 2),
    Sketcher.Constraint("Vertical", 1, 2, 2, 1),
    Sketcher.Constraint("Vertical", 3, 2, 4, 1),
    Sketcher.Constraint("Vertical", 5, 2, 6, 1),
    Sketcher.Constraint("Vertical", 7, 2, 8, 1),
    Sketcher.Constraint("Vertical", 11, 2, 12, 1),
    Sketcher.Constraint("Vertical", 13, 2, 14, 1),
    Sketcher.Constraint("Vertical", 15, 2, 16, 1),
    Sketcher.Constraint("Vertical", 17, 2, 18, 1),
    Sketcher.Constraint("Vertical", 25, 2, 28, 1),
    Sketcher.Constraint("Diameter", 20, 2.5),
    Sketcher.Constraint("Diameter", 21, 3.1),
    Sketcher.Constraint("DistanceX", 31, 2, 31, 1, 25.0),
    Sketcher.Constraint("DistanceY", 3, 2, 3, 1, 30.0),
    Sketcher.Constraint("Radius", 2, 1.05),
    Sketcher.Constraint("DistanceX", 0, 2, 0, 1, 64.5),
    Sketcher.Constraint("DistanceY", -1, 1, 3, 2, 15.0),
    Sketcher.Constraint("DistanceY", -1, 1, 49, 2, 2.5),
    Sketcher.Constraint("DistanceY", 47, 1, 47, 2, 38.0),
    Sketcher.Constraint("DistanceX", 48, 1, 48, 2, 48.5),
    Sketcher.Constraint("DistanceY", 1, 2, 1, 1, 17.9),
    Sketcher.Constraint("DistanceY", 32, 1, 32, 2, 17.5),
    Sketcher.Constraint("DistanceX", 20, 3, -1, 1, 24.5),
    Sketcher.Constraint("DistanceY", 20, 3, -1, 1, 61.5),
    Sketcher.Constraint("DistanceX", 21, 3, -1, 1, 17.5),
    Sketcher.Constraint("DistanceY", -1, 1, 46, 3, 43.5),
    Sketcher.Constraint("DistanceY", 24, 1, -1, 1, 11.2),
    Sketcher.Constraint("DistanceY", 28, 1, -1, 1, 31.3),
    Sketcher.Constraint("DistanceX", 31, 2, -1, 1, 12.5),
    Sketcher.Constraint("DistanceY", 21, 3, -1, 1, 36.25),
    Sketcher.Constraint("DistanceY", 30, 3, -1, 1, 6.25),
    Sketcher.Constraint("DistanceX", 22, 1, -1, 1, 20.05),
    Sketcher.Constraint("DistanceX", 26, 1, -1, 1, 14.95),
    Sketcher.Constraint("DistanceX", 47, 2, -1, 1, 24.25),
    Sketcher.Constraint("DistanceX", 25, 1, 25, 2, 2.1302),
    Sketcher.Constraint("DistanceX", 22, 3, -1, 1, 19.3075),
])
pad2 = body.newObject("PartDesign::Pad", "Pad001")
pad2.Profile = sketch2
pad2.Length = 5
doc.recompute()

fillet = body.newObject("PartDesign::Fillet", "Fillet")
fillet.Base = (pad2, edges_at(pad2, [
    (-12.5, -45, 2.5),
    (-12.5, -62.5, 2.5),
    (12.5, -62.5, 2.5),
    (-24.25, 40.5, 2.5),
    (24.25, 40.5, 2.5),
    (24.25, 2.5, 2.5),
    (-24.25, 2.5, 2.5),
]))
fillet.Radius = 1

sketch3 = body.newObject("Sketcher::SketchObject", "Sketch002")
sketch3.AttachmentSupport = (doc.getObject("YZ_Plane"), [""])
sketch3.MapMode = "FlatFace"
sketch3.AttachmentOffset = App.Placement(App.Vector(0, 0, 32.25), App.Rotation())
sketch3.addGeometry([
    Part.Circle(App.Vector(-55, 2.5, 0), App.Vector(0, 0, 1), 1.2),
    Part.Circle(App.Vector(-5, 2.5, 0), App.Vector(0, 0, 1), 1.2),
], False)
sketch3.addConstraint([
    Sketcher.Constraint("Equal", 0, 1),
    Sketcher.Constraint("Horizontal", 0, 3, 1, 3),
    Sketcher.Constraint("Diameter", 0, 2.459),
    Sketcher.Constraint("DistanceX", 0, 3, -1, 1, 55.0),
    Sketcher.Constraint("DistanceX", 1, 3, -1, 1, 5.0),
    Sketcher.Constraint("DistanceY", -1, 1, 0, 3, 2.5),
])
doc.recompute()
hole = body.newObject("PartDesign::Hole", "Hole")
hole.Profile = sketch3
hole.ThreadType = "None"
hole.Diameter = 2.459
hole.DepthType = "Dimension"
hole.Depth = 4
hole.DrillPoint = "Flat"

sketch4 = body.newObject("Sketcher::SketchObject", "Sketch003")
sketch4.AttachmentSupport = (doc.getObject("YZ_Plane"), [""])
sketch4.MapMode = "FlatFace"
sketch4.AttachmentOffset = App.Placement(App.Vector(0, 0, -32.25), App.Rotation())
sketch4.addGeometry([
    Part.Circle(App.Vector(-5, 2.5, 0), App.Vector(0, 0, 1), 1.2),
    Part.Circle(App.Vector(-55, 2.5, 0), App.Vector(0, 0, 1), 1.2),
], False)
sketch4.addConstraint([
    Sketcher.Constraint("Equal", 0, 1),
    Sketcher.Constraint("Horizontal", 0, 3, 1, 3),
    Sketcher.Constraint("Diameter", 0, 2.459),
    Sketcher.Constraint("DistanceX", 0, 3, -1, 1, 5.0),
    Sketcher.Constraint("DistanceX", 1, 3, -1, 1, 55.0),
    Sketcher.Constraint("DistanceY", -1, 1, 0, 3, 2.5),
])
doc.recompute()
hole2 = body.newObject("PartDesign::Hole", "Hole001")
hole2.Profile = sketch4
hole2.ThreadType = "None"
hole2.Diameter = 2.459
hole2.DepthType = "Dimension"
hole2.Depth = 4
hole2.DrillPoint = "Flat"
hole2.Reversed = True
doc.recompute()

chamfer = body.newObject("PartDesign::Chamfer", "Chamfer")
chamfer.Base = (hole2, edges_at(hole2, [
    (-37.25, -45, 1.25),
    (-37.25, -15, 1.25),
    (-37.25, 15, 1.25),
    (-37.25, 45, 1.25),
    (37.25, 15, 1.25),
    (37.25, 45, 1.25),
    (37.25, -15, 1.25),
    (37.25, -45, 1.25),
]))
chamfer.Size = 0.5

doc.recompute()
